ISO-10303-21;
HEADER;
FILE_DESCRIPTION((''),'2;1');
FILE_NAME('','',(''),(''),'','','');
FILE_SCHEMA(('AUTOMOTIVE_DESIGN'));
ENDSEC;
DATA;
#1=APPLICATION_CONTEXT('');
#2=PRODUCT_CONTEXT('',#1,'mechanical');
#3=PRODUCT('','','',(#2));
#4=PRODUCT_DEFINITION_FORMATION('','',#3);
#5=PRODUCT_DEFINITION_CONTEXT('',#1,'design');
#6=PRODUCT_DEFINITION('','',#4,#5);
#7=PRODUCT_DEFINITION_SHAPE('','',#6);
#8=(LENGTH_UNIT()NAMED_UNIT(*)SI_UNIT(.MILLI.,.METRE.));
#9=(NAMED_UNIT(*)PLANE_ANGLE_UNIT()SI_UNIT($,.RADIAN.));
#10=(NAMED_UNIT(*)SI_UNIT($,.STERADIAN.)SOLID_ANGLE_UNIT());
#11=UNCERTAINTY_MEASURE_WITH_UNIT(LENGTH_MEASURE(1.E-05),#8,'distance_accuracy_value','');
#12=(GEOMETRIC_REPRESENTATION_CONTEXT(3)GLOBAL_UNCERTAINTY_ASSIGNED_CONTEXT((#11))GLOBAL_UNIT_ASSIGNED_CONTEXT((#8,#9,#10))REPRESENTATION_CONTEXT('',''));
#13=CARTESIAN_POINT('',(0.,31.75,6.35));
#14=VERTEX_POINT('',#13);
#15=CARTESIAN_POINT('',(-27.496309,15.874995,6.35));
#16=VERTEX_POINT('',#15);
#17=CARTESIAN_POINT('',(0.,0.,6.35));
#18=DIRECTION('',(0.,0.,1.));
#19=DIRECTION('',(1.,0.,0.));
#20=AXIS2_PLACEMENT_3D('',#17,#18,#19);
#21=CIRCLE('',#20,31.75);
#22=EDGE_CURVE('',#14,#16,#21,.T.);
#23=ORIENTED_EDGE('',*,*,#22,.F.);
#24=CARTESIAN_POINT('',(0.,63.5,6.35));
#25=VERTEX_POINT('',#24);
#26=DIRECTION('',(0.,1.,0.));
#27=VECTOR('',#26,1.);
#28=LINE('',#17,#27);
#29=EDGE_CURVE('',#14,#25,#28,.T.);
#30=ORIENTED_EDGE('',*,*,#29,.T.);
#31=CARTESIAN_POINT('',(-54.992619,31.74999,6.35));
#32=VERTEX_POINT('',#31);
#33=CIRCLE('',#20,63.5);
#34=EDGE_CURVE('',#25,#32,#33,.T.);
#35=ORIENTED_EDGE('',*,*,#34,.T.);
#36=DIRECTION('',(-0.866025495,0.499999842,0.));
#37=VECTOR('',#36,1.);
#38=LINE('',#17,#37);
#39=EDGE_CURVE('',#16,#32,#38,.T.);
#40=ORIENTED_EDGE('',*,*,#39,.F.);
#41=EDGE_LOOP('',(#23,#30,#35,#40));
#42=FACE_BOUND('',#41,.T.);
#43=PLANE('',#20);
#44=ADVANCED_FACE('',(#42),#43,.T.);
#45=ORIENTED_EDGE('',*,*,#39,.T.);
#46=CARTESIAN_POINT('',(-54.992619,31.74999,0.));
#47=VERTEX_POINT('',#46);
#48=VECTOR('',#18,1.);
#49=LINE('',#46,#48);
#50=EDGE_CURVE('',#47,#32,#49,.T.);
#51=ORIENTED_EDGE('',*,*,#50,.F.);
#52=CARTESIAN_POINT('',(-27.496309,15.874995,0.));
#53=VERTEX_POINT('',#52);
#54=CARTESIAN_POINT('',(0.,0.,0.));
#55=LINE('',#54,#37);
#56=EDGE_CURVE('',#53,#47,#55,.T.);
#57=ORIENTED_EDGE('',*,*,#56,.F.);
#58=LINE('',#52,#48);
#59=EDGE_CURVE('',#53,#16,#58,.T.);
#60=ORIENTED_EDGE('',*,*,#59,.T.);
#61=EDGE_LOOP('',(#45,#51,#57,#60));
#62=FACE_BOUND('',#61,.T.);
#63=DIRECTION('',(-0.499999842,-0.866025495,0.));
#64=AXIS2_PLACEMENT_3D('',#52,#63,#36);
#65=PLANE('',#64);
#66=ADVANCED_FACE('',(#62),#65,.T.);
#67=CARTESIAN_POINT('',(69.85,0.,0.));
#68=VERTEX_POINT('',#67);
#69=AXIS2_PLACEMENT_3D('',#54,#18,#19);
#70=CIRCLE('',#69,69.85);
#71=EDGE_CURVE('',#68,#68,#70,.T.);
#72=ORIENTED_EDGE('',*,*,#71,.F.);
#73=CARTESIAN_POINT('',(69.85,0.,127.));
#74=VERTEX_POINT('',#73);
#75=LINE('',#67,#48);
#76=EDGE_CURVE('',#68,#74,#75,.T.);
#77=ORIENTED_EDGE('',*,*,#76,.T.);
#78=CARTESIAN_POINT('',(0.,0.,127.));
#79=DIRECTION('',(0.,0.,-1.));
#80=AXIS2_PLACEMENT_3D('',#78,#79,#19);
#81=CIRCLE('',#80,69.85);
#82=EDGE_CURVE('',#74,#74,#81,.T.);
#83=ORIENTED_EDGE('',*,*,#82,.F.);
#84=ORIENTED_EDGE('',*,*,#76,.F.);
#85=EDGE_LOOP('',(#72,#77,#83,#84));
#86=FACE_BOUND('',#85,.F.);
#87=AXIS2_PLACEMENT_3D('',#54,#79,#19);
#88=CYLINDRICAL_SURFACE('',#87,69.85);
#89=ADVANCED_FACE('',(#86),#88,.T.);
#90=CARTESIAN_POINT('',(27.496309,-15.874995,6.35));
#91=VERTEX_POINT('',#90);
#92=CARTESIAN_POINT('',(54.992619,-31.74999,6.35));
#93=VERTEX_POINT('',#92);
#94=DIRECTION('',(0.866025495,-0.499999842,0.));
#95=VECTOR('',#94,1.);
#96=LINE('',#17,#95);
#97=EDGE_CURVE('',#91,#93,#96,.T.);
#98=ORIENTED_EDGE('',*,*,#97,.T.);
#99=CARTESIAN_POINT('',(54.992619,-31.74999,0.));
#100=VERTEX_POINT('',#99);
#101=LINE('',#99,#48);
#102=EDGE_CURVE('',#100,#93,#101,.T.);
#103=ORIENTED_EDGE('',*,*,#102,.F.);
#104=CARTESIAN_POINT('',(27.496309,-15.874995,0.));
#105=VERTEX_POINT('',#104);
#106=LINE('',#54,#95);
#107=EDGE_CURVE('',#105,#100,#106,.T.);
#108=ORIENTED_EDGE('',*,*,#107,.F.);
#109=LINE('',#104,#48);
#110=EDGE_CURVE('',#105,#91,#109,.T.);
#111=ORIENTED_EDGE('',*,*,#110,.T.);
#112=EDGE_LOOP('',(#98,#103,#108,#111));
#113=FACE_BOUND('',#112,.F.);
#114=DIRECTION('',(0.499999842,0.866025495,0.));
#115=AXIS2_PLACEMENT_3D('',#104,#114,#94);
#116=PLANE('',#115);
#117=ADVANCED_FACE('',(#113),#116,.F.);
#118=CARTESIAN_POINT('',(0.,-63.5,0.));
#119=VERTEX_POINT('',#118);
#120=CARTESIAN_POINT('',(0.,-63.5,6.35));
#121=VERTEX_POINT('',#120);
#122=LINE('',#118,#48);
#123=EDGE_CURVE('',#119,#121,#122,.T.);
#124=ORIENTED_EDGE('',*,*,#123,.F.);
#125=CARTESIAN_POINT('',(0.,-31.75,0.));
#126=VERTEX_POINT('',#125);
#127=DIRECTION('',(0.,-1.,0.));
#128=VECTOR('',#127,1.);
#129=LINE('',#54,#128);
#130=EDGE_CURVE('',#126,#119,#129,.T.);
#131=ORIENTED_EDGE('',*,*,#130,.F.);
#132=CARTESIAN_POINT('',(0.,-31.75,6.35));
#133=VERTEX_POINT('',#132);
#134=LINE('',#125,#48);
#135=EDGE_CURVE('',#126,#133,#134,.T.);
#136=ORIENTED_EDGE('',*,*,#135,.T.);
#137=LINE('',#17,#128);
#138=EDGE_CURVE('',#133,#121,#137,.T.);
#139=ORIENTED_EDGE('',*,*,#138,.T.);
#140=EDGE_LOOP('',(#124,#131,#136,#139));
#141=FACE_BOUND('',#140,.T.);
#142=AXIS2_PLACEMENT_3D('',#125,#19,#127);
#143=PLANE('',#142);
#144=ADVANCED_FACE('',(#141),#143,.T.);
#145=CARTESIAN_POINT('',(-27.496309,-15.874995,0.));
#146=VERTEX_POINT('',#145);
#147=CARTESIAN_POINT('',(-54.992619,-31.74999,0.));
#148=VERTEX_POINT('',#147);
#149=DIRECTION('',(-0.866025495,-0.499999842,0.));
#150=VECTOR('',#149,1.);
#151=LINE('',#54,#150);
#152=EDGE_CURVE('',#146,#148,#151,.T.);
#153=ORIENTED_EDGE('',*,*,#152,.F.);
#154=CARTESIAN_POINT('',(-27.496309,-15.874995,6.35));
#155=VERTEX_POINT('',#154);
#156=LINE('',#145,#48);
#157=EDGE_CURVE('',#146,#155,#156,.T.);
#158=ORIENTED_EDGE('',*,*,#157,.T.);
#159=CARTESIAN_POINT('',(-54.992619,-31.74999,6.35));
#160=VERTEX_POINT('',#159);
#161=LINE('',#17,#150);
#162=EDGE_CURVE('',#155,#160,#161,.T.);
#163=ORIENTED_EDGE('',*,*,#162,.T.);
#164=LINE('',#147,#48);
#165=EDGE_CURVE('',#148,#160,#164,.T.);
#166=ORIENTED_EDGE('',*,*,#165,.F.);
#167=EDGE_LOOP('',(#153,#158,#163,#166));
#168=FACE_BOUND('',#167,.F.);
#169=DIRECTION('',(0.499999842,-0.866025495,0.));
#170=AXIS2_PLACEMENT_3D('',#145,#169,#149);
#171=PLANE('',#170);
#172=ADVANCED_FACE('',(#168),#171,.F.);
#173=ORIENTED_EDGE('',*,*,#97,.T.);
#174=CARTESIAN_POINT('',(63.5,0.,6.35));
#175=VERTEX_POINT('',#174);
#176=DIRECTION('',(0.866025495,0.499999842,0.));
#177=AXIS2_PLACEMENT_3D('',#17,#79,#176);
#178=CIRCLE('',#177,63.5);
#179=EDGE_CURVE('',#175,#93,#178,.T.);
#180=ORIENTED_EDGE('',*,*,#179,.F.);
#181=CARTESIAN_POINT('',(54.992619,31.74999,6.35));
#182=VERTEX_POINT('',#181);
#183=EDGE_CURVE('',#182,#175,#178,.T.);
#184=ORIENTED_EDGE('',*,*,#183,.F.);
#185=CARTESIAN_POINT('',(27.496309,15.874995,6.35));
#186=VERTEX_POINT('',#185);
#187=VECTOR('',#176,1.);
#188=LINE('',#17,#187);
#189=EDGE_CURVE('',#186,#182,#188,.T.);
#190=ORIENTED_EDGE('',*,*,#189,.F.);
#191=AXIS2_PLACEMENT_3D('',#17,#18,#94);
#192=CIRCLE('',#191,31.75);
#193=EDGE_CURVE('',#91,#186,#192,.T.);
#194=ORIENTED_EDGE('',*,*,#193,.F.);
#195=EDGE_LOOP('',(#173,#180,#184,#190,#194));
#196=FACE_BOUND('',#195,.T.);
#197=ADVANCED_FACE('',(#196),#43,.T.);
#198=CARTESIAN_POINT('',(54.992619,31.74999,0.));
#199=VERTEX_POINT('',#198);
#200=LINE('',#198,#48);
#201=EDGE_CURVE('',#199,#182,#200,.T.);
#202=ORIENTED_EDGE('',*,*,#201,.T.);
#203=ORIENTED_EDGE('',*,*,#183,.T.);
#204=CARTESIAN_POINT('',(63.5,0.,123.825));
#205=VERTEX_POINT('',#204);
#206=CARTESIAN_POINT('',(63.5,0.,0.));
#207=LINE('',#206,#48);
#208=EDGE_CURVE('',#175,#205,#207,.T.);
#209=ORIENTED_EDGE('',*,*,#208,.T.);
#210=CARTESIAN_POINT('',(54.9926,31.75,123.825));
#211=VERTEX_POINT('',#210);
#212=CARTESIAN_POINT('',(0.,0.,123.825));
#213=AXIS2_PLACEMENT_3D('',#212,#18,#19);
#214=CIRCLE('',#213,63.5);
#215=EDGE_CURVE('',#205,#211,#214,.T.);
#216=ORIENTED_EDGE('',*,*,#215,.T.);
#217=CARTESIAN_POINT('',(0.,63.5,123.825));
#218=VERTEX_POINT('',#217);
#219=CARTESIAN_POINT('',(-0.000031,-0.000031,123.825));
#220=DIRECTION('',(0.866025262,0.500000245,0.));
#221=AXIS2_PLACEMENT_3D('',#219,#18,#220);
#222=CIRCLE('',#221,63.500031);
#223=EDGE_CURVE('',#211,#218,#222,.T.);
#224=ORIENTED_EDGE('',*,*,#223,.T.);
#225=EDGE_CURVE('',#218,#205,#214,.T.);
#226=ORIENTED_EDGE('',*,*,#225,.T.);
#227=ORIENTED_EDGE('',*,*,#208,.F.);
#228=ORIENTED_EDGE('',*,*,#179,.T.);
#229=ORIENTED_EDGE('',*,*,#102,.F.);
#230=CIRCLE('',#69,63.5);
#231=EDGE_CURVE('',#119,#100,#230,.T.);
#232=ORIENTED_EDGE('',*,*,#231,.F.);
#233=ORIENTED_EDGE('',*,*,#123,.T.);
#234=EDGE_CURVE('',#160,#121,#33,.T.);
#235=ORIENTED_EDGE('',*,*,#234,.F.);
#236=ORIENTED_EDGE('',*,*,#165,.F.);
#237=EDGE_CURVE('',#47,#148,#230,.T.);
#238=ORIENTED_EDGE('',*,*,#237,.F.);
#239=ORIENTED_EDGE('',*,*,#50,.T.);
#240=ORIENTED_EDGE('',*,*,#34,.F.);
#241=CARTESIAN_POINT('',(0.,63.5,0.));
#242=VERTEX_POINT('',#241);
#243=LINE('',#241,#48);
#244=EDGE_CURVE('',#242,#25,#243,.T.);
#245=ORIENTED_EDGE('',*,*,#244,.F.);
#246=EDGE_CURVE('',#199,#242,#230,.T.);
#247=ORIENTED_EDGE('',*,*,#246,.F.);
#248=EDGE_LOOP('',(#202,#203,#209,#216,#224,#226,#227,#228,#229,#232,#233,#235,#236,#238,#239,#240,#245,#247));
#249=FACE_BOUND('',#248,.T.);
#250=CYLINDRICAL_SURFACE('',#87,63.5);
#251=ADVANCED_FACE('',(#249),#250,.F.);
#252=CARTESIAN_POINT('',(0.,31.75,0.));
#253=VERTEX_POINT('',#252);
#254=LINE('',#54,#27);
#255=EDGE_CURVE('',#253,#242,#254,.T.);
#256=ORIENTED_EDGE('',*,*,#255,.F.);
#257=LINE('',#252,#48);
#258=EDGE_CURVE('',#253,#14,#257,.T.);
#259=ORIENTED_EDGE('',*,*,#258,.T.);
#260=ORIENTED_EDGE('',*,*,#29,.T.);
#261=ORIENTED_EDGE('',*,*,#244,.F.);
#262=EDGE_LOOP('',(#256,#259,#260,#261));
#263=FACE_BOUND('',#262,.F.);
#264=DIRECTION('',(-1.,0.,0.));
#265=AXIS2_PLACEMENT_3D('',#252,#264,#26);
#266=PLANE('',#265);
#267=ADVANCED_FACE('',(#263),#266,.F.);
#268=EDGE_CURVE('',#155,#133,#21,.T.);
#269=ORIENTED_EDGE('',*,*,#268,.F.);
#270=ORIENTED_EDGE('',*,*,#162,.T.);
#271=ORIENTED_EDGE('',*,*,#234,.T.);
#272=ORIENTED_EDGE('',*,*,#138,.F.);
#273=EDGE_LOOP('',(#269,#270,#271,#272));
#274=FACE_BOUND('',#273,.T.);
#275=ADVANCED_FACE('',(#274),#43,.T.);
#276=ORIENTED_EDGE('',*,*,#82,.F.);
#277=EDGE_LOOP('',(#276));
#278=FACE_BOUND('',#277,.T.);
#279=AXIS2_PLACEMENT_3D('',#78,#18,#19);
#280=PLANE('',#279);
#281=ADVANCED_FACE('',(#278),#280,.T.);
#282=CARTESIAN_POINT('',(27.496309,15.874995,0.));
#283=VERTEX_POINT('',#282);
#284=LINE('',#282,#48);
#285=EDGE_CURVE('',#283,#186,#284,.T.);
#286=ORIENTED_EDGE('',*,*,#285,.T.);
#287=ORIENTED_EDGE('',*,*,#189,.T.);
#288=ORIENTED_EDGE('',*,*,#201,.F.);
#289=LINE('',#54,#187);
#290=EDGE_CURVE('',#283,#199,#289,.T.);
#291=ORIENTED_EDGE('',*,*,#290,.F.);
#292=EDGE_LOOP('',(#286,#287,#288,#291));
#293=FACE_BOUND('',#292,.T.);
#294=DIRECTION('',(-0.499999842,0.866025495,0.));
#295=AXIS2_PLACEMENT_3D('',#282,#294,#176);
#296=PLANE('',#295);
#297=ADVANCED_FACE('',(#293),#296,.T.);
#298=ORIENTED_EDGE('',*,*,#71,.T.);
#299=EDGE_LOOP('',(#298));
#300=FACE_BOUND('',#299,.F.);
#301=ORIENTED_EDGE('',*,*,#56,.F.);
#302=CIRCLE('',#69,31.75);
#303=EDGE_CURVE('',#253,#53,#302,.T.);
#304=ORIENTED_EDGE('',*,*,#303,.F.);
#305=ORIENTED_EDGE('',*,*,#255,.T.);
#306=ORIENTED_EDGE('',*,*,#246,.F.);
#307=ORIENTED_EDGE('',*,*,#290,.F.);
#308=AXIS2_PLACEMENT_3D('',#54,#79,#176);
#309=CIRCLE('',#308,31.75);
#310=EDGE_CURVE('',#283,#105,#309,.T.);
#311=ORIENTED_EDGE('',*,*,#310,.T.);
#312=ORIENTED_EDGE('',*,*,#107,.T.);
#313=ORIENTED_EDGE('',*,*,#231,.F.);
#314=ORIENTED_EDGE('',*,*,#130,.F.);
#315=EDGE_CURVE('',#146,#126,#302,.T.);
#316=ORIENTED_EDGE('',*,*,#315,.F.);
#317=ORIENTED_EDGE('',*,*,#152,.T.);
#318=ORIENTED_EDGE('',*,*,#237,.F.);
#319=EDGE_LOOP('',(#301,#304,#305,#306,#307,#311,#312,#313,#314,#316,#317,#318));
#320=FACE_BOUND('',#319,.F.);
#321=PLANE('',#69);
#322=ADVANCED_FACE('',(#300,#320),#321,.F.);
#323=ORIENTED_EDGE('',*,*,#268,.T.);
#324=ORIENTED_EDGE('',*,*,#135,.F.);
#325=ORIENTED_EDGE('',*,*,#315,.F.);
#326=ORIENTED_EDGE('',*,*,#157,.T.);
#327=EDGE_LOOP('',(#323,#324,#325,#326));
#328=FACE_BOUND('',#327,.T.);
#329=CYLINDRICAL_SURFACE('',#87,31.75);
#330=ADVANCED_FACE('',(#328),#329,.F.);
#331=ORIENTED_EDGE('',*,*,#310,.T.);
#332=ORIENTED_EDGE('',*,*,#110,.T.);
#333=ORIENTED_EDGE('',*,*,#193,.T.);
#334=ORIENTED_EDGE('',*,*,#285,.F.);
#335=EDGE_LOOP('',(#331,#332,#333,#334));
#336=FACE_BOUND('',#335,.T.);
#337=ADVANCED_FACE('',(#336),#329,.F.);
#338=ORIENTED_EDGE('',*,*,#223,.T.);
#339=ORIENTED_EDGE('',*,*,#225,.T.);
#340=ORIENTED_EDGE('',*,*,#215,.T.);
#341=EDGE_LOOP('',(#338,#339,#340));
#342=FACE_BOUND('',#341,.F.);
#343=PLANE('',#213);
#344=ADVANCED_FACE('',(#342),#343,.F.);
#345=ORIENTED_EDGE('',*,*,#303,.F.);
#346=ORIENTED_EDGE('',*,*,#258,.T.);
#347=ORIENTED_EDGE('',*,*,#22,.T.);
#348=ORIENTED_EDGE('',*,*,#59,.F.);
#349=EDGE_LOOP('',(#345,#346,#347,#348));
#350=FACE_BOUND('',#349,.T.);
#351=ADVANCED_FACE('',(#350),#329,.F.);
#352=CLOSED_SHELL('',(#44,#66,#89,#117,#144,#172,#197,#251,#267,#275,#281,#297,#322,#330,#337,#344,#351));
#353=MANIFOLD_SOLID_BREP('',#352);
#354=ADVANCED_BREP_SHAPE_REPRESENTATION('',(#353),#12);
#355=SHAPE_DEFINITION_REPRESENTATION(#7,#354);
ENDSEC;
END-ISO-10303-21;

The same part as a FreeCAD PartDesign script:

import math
import FreeCAD as App
import Part
import Sketcher

V = App.Vector
Q = App.Units.Quantity

doc = App.newDocument("Part")
body = doc.addObject("PartDesign::Body", "Body")

# Sketch on XY plane
sketch1 = body.newObject("Sketcher::SketchObject", "Sketch")
sketch1.AttachmentSupport = (doc.getObject("XY_Plane"), [""])
sketch1.MapMode = "FlatFace"
sketch1.addGeometry([
    Part.Circle(V(0, 0, 0), V(0, 0, 1), 69.85),
    Part.Circle(V(0, 0, 0), V(0, 0, 1), 63.5),
], False)
sketch1.addConstraint([
    Sketcher.Constraint("Coincident", 0, 3, -1, 1),
    Sketcher.Constraint("Coincident", 1, 3, -1, 1),
    Sketcher.Constraint("Diameter", 1, Q("5 in")),
    Sketcher.Constraint("Diameter", 0, Q("5.5 in")),
])
pad1 = body.newObject("PartDesign::Pad", "Pad")
pad1.Profile = sketch1
pad1.Length = Q("5 in")

# Sketch on XY plane
sketch2 = body.newObject("Sketcher::SketchObject", "Sketch001")
sketch2.AttachmentSupport = (doc.getObject("XY_Plane"), [""])
sketch2.MapMode = "FlatFace"
sketch2.addGeometry([
    Part.ArcOfCircle(Part.Circle(V(0, 0, 0), V(0, 0, 1), 31.75), math.radians(-29.99999), math.radians(29.99999)),  # 0
    Part.LineSegment(V(27.496309, -15.874995, 0), V(54.992619, -31.74999, 0)),  # 1
    Part.ArcOfCircle(Part.Circle(V(0, 0, 0), V(0, 0, 1), 63.5), math.radians(-29.99999), math.radians(29.99999)),  # 2
    Part.LineSegment(V(54.992619, 31.74999, 0), V(27.496309, 15.874995, 0)),  # 3
    Part.ArcOfCircle(Part.Circle(V(0, 0, 0), V(0, 0, 1), 31.75), math.radians(90), math.radians(150.00001)),  # 4
    Part.LineSegment(V(0, 31.75, 0), V(0, 63.5, 0)),  # 5
    Part.ArcOfCircle(Part.Circle(V(0, 0, 0), V(0, 0, 1), 63.5), math.radians(90), math.radians(150.00001)),  # 6
    Part.LineSegment(V(-54.992619, 31.74999, 0), V(-27.496309, 15.874995, 0)),  # 7
    Part.LineSegment(V(0, -63.5, 0), V(0, -31.75, 0)),  # 8
    Part.ArcOfCircle(Part.Circle(V(0, 0, 0), V(0, 0, 1), 31.75), math.radians(-150.00001), math.radians(-90)),  # 9
    Part.LineSegment(V(-27.496309, -15.874995, 0), V(-54.992619, -31.74999, 0)),  # 10
    Part.ArcOfCircle(Part.Circle(V(0, 0, 0), V(0, 0, 1), 63.5), math.radians(-150.00001), math.radians(-90)),  # 11
], False)
sketch2.addConstraint([
    Sketcher.Constraint("Coincident", 0, 1, 1, 1),
    Sketcher.Constraint("Coincident", 1, 2, 2, 1),
    Sketcher.Constraint("Coincident", 2, 2, 3, 1),
    Sketcher.Constraint("Coincident", 3, 2, 0, 2),
    Sketcher.Constraint("Coincident", 4, 1, 5, 1),
    Sketcher.Constraint("Coincident", 5, 2, 6, 1),
    Sketcher.Constraint("Coincident", 6, 2, 7, 1),
    Sketcher.Constraint("Coincident", 7, 2, 4, 2),
    Sketcher.Constraint("Coincident", 8, 2, 9, 2),
    Sketcher.Constraint("Coincident", 9, 1, 10, 1),
    Sketcher.Constraint("Coincident", 10, 2, 11, 1),
    Sketcher.Constraint("Coincident", 11, 2, 8, 1),
    Sketcher.Constraint("Vertical", 5),
    Sketcher.Constraint("Vertical", 8),
    Sketcher.Constraint("Coincident", 0, 3, -1, 1),
    Sketcher.Constraint("Coincident", 2, 3, -1, 1),
    Sketcher.Constraint("Coincident", 4, 3, -1, 1),
    Sketcher.Constraint("Coincident", 6, 3, -1, 1),
    Sketcher.Constraint("Coincident", 9, 3, -1, 1),
    Sketcher.Constraint("Coincident", 11, 3, -1, 1),
    Sketcher.Constraint("Equal", 0, 4),
    Sketcher.Constraint("Equal", 2, 6),
    Sketcher.Constraint("Equal", 4, 9),
    Sketcher.Constraint("Equal", 6, 11),
    Sketcher.Constraint("PointOnObject", 4, 1, -2),
    Sketcher.Constraint("PointOnObject", 8, 2, -2),
    Sketcher.Constraint("Parallel", 1, 7),
    Sketcher.Constraint("Parallel", 3, 10),
    Sketcher.Constraint("Horizontal", 2, 2, 4, 1),
    Sketcher.Constraint("Horizontal", 4, 1, 6, 2),
    Sketcher.Constraint("Horizontal", 3, 2, 7, 2),
    Sketcher.Constraint("Horizontal", 1, 2, 8, 2),
    Sketcher.Constraint("Horizontal", 0, 1, 9, 1),
    Sketcher.Constraint("Radius", 2, Q("2.5 in")),
    Sketcher.Constraint("Radius", 0, Q("1.25 in")),
    Sketcher.Constraint("Angle", 1, Q("-30 deg")),
])
pad2 = body.newObject("PartDesign::Pad", "Pad001")
pad2.Profile = sketch2
pad2.Length = Q("0.25 in")

# Sketch on XY plane
sketch3 = body.newObject("Sketcher::SketchObject", "Sketch002")
sketch3.AttachmentSupport = (doc.getObject("XY_Plane"), [""])
sketch3.MapMode = "FlatFace"
sketch3.AttachmentOffset = App.Placement(V(0, 0, 5 * 25.4), App.Rotation())
sketch3.addGeometry([
    Part.ArcOfCircle(Part.Circle(V(0, 0, 0), V(0, 0, 1), 63.5), math.radians(90), math.radians(390.000006)),
    Part.ArcOfCircle(Part.Circle(V(0, 0, 0), V(0, 0, 1), 63.5), math.radians(30.000006), math.radians(90)),
], False)
sketch3.addConstraint([
    Sketcher.Constraint("Tangent", 0, 1, 1, 2),
    Sketcher.Constraint("Coincident", 1, 1, 0, 2),
    Sketcher.Constraint("Coincident", 0, 3, -1, 1),
    Sketcher.Constraint("PointOnObject", 0, 1, -2),
    Sketcher.Constraint("Radius", 0, Q("2.5 in")),
    Sketcher.Constraint("DistanceY", -1, 1, 1, 1, Q("1.25 in")),
])
pad3 = body.newObject("PartDesign::Pad", "Pad002")
pad3.Profile = sketch3
pad3.Length = Q("0.125 in")
pad3.Reversed = True

doc.recompute()
